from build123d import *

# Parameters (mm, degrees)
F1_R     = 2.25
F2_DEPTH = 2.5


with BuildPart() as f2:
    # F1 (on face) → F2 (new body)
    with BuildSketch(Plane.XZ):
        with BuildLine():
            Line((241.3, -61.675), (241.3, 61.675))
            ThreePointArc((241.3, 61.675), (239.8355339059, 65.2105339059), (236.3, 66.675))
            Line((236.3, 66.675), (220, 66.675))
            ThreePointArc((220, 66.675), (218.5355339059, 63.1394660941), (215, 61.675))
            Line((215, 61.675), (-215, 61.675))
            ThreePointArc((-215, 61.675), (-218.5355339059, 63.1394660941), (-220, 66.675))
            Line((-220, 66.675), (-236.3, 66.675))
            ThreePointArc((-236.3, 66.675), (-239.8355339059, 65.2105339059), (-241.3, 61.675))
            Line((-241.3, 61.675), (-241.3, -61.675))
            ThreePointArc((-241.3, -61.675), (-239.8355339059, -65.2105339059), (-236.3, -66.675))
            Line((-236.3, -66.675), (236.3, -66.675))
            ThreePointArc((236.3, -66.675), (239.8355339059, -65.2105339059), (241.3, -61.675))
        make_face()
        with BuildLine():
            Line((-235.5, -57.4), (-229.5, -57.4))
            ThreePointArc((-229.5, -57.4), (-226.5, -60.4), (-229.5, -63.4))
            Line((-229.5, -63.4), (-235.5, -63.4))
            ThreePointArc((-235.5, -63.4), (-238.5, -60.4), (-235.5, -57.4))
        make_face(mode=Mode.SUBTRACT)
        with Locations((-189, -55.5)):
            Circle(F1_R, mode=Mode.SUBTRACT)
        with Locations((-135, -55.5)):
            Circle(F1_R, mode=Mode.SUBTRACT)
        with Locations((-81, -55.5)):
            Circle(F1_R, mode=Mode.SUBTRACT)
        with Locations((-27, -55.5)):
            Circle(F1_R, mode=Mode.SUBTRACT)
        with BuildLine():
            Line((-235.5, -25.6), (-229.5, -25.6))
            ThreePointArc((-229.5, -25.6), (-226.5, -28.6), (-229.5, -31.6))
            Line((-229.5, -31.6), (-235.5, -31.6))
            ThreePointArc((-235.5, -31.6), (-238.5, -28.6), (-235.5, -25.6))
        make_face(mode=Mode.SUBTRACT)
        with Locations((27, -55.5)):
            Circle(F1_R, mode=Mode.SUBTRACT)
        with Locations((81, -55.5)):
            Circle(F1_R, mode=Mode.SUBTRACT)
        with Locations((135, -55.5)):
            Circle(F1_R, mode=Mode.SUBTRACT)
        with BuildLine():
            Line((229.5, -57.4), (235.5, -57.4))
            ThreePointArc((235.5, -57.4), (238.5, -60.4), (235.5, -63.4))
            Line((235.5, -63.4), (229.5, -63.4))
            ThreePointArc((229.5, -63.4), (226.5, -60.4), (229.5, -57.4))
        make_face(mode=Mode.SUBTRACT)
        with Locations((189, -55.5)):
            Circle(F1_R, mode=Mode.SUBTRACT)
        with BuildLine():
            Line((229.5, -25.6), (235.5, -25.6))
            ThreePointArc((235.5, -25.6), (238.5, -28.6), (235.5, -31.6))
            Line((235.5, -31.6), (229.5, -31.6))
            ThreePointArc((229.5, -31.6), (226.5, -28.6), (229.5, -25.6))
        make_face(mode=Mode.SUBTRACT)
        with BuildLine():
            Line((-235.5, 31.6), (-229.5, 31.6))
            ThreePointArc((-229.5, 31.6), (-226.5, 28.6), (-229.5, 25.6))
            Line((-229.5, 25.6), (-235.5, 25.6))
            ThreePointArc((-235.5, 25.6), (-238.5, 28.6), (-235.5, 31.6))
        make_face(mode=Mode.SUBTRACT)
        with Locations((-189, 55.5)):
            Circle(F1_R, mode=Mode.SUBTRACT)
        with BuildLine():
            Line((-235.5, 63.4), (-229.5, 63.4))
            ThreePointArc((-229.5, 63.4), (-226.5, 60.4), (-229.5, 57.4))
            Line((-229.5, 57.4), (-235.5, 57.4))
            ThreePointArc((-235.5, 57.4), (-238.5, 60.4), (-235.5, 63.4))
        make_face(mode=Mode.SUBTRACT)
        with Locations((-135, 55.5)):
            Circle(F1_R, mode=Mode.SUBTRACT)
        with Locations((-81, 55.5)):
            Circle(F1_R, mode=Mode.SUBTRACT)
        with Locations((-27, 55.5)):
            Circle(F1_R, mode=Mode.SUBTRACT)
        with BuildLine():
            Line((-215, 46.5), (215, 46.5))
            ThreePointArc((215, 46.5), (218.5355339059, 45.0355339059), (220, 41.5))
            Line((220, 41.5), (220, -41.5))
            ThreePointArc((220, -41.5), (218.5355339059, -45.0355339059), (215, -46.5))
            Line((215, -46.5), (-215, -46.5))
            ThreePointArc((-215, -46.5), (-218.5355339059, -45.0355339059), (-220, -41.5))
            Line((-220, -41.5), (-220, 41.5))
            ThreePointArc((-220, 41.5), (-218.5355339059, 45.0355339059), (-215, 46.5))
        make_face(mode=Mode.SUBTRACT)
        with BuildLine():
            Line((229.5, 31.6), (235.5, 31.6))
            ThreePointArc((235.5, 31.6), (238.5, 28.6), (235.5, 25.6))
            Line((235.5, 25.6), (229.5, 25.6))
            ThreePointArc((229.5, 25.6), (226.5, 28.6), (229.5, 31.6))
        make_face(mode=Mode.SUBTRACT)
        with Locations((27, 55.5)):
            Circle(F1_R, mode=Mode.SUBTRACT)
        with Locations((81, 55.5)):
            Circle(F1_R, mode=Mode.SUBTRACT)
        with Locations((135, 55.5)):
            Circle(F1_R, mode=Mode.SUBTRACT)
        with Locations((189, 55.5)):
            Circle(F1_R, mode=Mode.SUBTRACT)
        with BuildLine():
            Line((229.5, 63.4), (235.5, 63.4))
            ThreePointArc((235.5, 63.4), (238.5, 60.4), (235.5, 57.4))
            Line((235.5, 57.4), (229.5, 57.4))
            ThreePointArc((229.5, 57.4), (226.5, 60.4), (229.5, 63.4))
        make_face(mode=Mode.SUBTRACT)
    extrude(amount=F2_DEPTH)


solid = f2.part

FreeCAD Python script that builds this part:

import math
import FreeCAD as App
import Part
import Sketcher

V = App.Vector

doc = App.newDocument("Part")
body = doc.addObject("PartDesign::Body", "Body")

sketch1 = body.newObject("Sketcher::SketchObject", "Sketch")
sketch1.AttachmentSupport = (doc.getObject("XZ_Plane"), [""])
sketch1.MapMode = "FlatFace"
sketch1.addGeometry([
    Part.LineSegment(V(241.3, -61.7, 0), V(241.3, 61.7, 0)),
    Part.ArcOfCircle(Part.Circle(V(236.3, 61.7, 0), V(0, 0, 1), 5), math.radians(0), math.radians(90)),
    Part.LineSegment(V(236.3, 66.7, 0), V(220, 66.7, 0)),
    Part.ArcOfCircle(Part.Circle(V(215, 66.7, 0), V(0, 0, 1), 5), math.radians(-90), math.radians(0)),
    Part.LineSegment(V(215, 61.7, 0), V(-215, 61.7, 0)),
    Part.ArcOfCircle(Part.Circle(V(-215, 66.7, 0), V(0, 0, 1), 5), math.radians(180), math.radians(270)),
    Part.LineSegment(V(-220, 66.7, 0), V(-236.3, 66.7, 0)),
    Part.ArcOfCircle(Part.Circle(V(-236.3, 61.7, 0), V(0, 0, 1), 5), math.radians(90), math.radians(180)),
    Part.LineSegment(V(-241.3, 61.7, 0), V(-241.3, -61.7, 0)),
    Part.ArcOfCircle(Part.Circle(V(-236.3, -61.7, 0), V(0, 0, 1), 5), math.radians(180), math.radians(270)),
    Part.LineSegment(V(-236.3, -66.7, 0), V(236.3, -66.7, 0)),
    Part.ArcOfCircle(Part.Circle(V(236.3, -61.7, 0), V(0, 0, 1), 5), math.radians(-90), math.radians(0)),
    Part.ArcOfCircle(Part.Circle(V(-235.5, -60.4, 0), V(0, 0, 1), 3), math.radians(90), math.radians(270)),
    Part.LineSegment(V(-235.5, -57.4, 0), V(-229.5, -57.4, 0)),
    Part.ArcOfCircle(Part.Circle(V(-229.5, -60.4, 0), V(0, 0, 1), 3), math.radians(-90), math.radians(90)),
    Part.LineSegment(V(-229.5, -63.4, 0), V(-235.5, -63.4, 0)),
    Part.Circle(V(-189, -55.5, 0), V(0, 0, 1), 2.2),
    Part.Circle(V(-135, -55.5, 0), V(0, 0, 1), 2.2),
    Part.Circle(V(-81, -55.5, 0), V(0, 0, 1), 2.2),
    Part.Circle(V(-27, -55.5, 0), V(0, 0, 1), 2.2),
    Part.ArcOfCircle(Part.Circle(V(-235.5, -28.6, 0), V(0, 0, 1), 3), math.radians(90), math.radians(270)),
    Part.LineSegment(V(-235.5, -25.6, 0), V(-229.5, -25.6, 0)),
    Part.ArcOfCircle(Part.Circle(V(-229.5, -28.6, 0), V(0, 0, 1), 3), math.radians(-90), math.radians(90)),
    Part.LineSegment(V(-229.5, -31.6, 0), V(-235.5, -31.6, 0)),
    Part.Circle(V(27, -55.5, 0), V(0, 0, 1), 2.2),
    Part.Circle(V(81, -55.5, 0), V(0, 0, 1), 2.2),
    Part.Circle(V(135, -55.5, 0), V(0, 0, 1), 2.2),
    Part.Circle(V(189, -55.5, 0), V(0, 0, 1), 2.2),
    Part.ArcOfCircle(Part.Circle(V(229.5, -60.4, 0), V(0, 0, 1), 3), math.radians(90), math.radians(270)),
    Part.LineSegment(V(229.5, -57.4, 0), V(235.5, -57.4, 0)),
    Part.ArcOfCircle(Part.Circle(V(235.5, -60.4, 0), V(0, 0, 1), 3), math.radians(-90), math.radians(90)),
    Part.LineSegment(V(235.5, -63.4, 0), V(229.5, -63.4, 0)),
    Part.ArcOfCircle(Part.Circle(V(-215, 41.5, 0), V(0, 0, 1), 5), math.radians(90), math.radians(180)),
    Part.LineSegment(V(-215, 46.5, 0), V(215, 46.5, 0)),
    Part.ArcOfCircle(Part.Circle(V(215, 41.5, 0), V(0, 0, 1), 5), math.radians(0), math.radians(90)),
    Part.LineSegment(V(220, 41.5, 0), V(220, -41.5, 0)),
    Part.ArcOfCircle(Part.Circle(V(215, -41.5, 0), V(0, 0, 1), 5), math.radians(-90), math.radians(0)),
    Part.LineSegment(V(215, -46.5, 0), V(-215, -46.5, 0)),
    Part.ArcOfCircle(Part.Circle(V(-215, -41.5, 0), V(0, 0, 1), 5), math.radians(180), math.radians(270)),
    Part.LineSegment(V(-220, -41.5, 0), V(-220, 41.5, 0)),
    Part.ArcOfCircle(Part.Circle(V(229.5, -28.6, 0), V(0, 0, 1), 3), math.radians(90), math.radians(270)),
    Part.LineSegment(V(229.5, -25.6, 0), V(235.5, -25.6, 0)),
    Part.ArcOfCircle(Part.Circle(V(235.5, -28.6, 0), V(0, 0, 1), 3), math.radians(-90), math.radians(90)),
    Part.LineSegment(V(235.5, -31.6, 0), V(229.5, -31.6, 0)),
    Part.ArcOfCircle(Part.Circle(V(-235.5, 28.6, 0), V(0, 0, 1), 3), math.radians(90), math.radians(270)),
    Part.LineSegment(V(-235.5, 31.6, 0), V(-229.5, 31.6, 0)),
    Part.ArcOfCircle(Part.Circle(V(-229.5, 28.6, 0), V(0, 0, 1), 3), math.radians(-90), math.radians(90)),
    Part.LineSegment(V(-229.5, 25.6, 0), V(-235.5, 25.6, 0)),
    Part.ArcOfCircle(Part.Circle(V(-235.5, 60.4, 0), V(0, 0, 1), 3), math.radians(90), math.radians(270)),
    Part.LineSegment(V(-235.5, 63.4, 0), V(-229.5, 63.4, 0)),
    Part.ArcOfCircle(Part.Circle(V(-229.5, 60.4, 0), V(0, 0, 1), 3), math.radians(-90), math.radians(90)),
    Part.LineSegment(V(-229.5, 57.4, 0), V(-235.5, 57.4, 0)),
    Part.Circle(V(-189, 55.5, 0), V(0, 0, 1), 2.2),
    Part.Circle(V(-135, 55.5, 0), V(0, 0, 1), 2.2),
    Part.Circle(V(-81, 55.5, 0), V(0, 0, 1), 2.2),
    Part.Circle(V(-27, 55.5, 0), V(0, 0, 1), 2.2),
    Part.ArcOfCircle(Part.Circle(V(229.5, 28.6, 0), V(0, 0, 1), 3), math.radians(90), math.radians(270)),
    Part.LineSegment(V(229.5, 31.6, 0), V(235.5, 31.6, 0)),
    Part.ArcOfCircle(Part.Circle(V(235.5, 28.6, 0), V(0, 0, 1), 3), math.radians(-90), math.radians(90)),
    Part.LineSegment(V(235.5, 25.6, 0), V(229.5, 25.6, 0)),
    Part.Circle(V(27, 55.5, 0), V(0, 0, 1), 2.2),
    Part.Circle(V(81, 55.5, 0), V(0, 0, 1), 2.2),
    Part.Circle(V(135, 55.5, 0), V(0, 0, 1), 2.2),
    Part.Circle(V(189, 55.5, 0), V(0, 0, 1), 2.2),
    Part.ArcOfCircle(Part.Circle(V(229.5, 60.4, 0), V(0, 0, 1), 3), math.radians(90), math.radians(270)),
    Part.LineSegment(V(229.5, 63.4, 0), V(235.5, 63.4, 0)),
    Part.ArcOfCircle(Part.Circle(V(235.5, 60.4, 0), V(0, 0, 1), 3), math.radians(-90), math.radians(90)),
    Part.LineSegment(V(235.5, 57.4, 0), V(229.5, 57.4, 0)),
], False)
sketch1.addConstraint([
    Sketcher.Constraint("Tangent", 0, 2, 1, 1),
    Sketcher.Constraint("Tangent", 1, 2, 2, 1),
    Sketcher.Constraint("Coincident", 2, 2, 3, 2),
    Sketcher.Constraint("Tangent", 3, 1, 4, 1),
    Sketcher.Constraint("Tangent", 4, 2, 5, 2),
    Sketcher.Constraint("Coincident", 5, 1, 6, 1),
    Sketcher.Constraint("Tangent", 6, 2, 7, 1),
    Sketcher.Constraint("Tangent", 7, 2, 8, 1),
    Sketcher.Constraint("Tangent", 8, 2, 9, 1),
    Sketcher.Constraint("Tangent", 9, 2, 10, 1),
    Sketcher.Constraint("Tangent", 10, 2, 11, 1),
    Sketcher.Constraint("Tangent", 11, 2, 0, 1),
    Sketcher.Constraint("Tangent", 12, 1, 13, 1),
    Sketcher.Constraint("Tangent", 13, 2, 14, 2),
    Sketcher.Constraint("Tangent", 14, 1, 15, 1),
    Sketcher.Constraint("Tangent", 15, 2, 12, 2),
    Sketcher.Constraint("Tangent", 20, 1, 21, 1),
    Sketcher.Constraint("Tangent", 21, 2, 22, 2),
    Sketcher.Constraint("Tangent", 22, 1, 23, 1),
    Sketcher.Constraint("Tangent", 23, 2, 20, 2),
    Sketcher.Constraint("Tangent", 28, 1, 29, 1),
    Sketcher.Constraint("Tangent", 29, 2, 30, 2),
    Sketcher.Constraint("Tangent", 30, 1, 31, 1),
    Sketcher.Constraint("Tangent", 31, 2, 28, 2),
    Sketcher.Constraint("Tangent", 32, 1, 33, 1),
    Sketcher.Constraint("Tangent", 33, 2, 34, 2),
    Sketcher.Constraint("Tangent", 34, 1, 35, 1),
    Sketcher.Constraint("Tangent", 35, 2, 36, 2),
    Sketcher.Constraint("Tangent", 36, 1, 37, 1),
    Sketcher.Constraint("Tangent", 37, 2, 38, 2),
    Sketcher.Constraint("Tangent", 38, 1, 39, 1),
    Sketcher.Constraint("Tangent", 39, 2, 32, 2),
    Sketcher.Constraint("Tangent", 40, 1, 41, 1),
    Sketcher.Constraint("Tangent", 41, 2, 42, 2),
    Sketcher.Constraint("Tangent", 42, 1, 43, 1),
    Sketcher.Constraint("Tangent", 43, 2, 40, 2),
    Sketcher.Constraint("Tangent", 44, 1, 45, 1),
    Sketcher.Constraint("Tangent", 45, 2, 46, 2),
    Sketcher.Constraint("Tangent", 46, 1, 47, 1),
    Sketcher.Constraint("Tangent", 47, 2, 44, 2),
    Sketcher.Constraint("Tangent", 48, 1, 49, 1),
    Sketcher.Constraint("Tangent", 49, 2, 50, 2),
    Sketcher.Constraint("Tangent", 50, 1, 51, 1),
    Sketcher.Constraint("Tangent", 51, 2, 48, 2),
    Sketcher.Constraint("Tangent", 56, 1, 57, 1),
    Sketcher.Constraint("Tangent", 57, 2, 58, 2),
    Sketcher.Constraint("Tangent", 58, 1, 59, 1),
    Sketcher.Constraint("Tangent", 59, 2, 56, 2),
    Sketcher.Constraint("Tangent", 64, 1, 65, 1),
    Sketcher.Constraint("Tangent", 65, 2, 66, 2),
    Sketcher.Constraint("Tangent", 66, 1, 67, 1),
    Sketcher.Constraint("Tangent", 67, 2, 64, 2),
    Sketcher.Constraint("Vertical", 0),
    Sketcher.Constraint("Horizontal", 2),
    Sketcher.Constraint("Horizontal", 4),
    Sketcher.Constraint("Horizontal", 6),
    Sketcher.Constraint("Vertical", 8),
    Sketcher.Constraint("Horizontal", 10),
    Sketcher.Constraint("Horizontal", 13),
    Sketcher.Constraint("Horizontal", 15),
    Sketcher.Constraint("Horizontal", 21),
    Sketcher.Constraint("Horizontal", 23),
    Sketcher.Constraint("Horizontal", 29),
    Sketcher.Constraint("Horizontal", 31),
    Sketcher.Constraint("Horizontal", 33),
    Sketcher.Constraint("Vertical", 35),
    Sketcher.Constraint("Horizontal", 37),
    Sketcher.Constraint("Vertical", 39),
    Sketcher.Constraint("Horizontal", 41),
    Sketcher.Constraint("Horizontal", 43),
    Sketcher.Constraint("Horizontal", 45),
    Sketcher.Constraint("Horizontal", 47),
    Sketcher.Constraint("Horizontal", 49),
    Sketcher.Constraint("Horizontal", 51),
    Sketcher.Constraint("Horizontal", 57),
    Sketcher.Constraint("Horizontal", 59),
    Sketcher.Constraint("Horizontal", 65),
    Sketcher.Constraint("Horizontal", 67),
    Sketcher.Constraint("Equal", 1, 3),
    Sketcher.Constraint("Equal", 3, 5),
    Sketcher.Constraint("Equal", 5, 7),
    Sketcher.Constraint("Equal", 7, 9),
    Sketcher.Constraint("Equal", 9, 11),
    Sketcher.Constraint("Equal", 16, 17),
    Sketcher.Constraint("Equal", 17, 18),
    Sketcher.Constraint("Equal", 18, 19),
    Sketcher.Constraint("Equal", 14, 20),
    Sketcher.Constraint("Equal", 19, 24),
    Sketcher.Constraint("Equal", 24, 25),
    Sketcher.Constraint("Equal", 25, 26),
    Sketcher.Constraint("Equal", 26, 27),
    Sketcher.Constraint("Equal", 22, 28),
    Sketcher.Constraint("Equal", 11, 32),
    Sketcher.Constraint("Equal", 32, 34),
    Sketcher.Constraint("Equal", 34, 36),
    Sketcher.Constraint("Equal", 36, 38),
    Sketcher.Constraint("Equal", 30, 40),
    Sketcher.Constraint("Equal", 42, 44),
    Sketcher.Constraint("Equal", 46, 48),
    Sketcher.Constraint("Equal", 27, 52),
    Sketcher.Constraint("Equal", 52, 53),
    Sketcher.Constraint("Equal", 53, 54),
    Sketcher.Constraint("Equal", 54, 55),
    Sketcher.Constraint("Equal", 50, 56),
    Sketcher.Constraint("Equal", 55, 60),
    Sketcher.Constraint("Equal", 60, 61),
    Sketcher.Constraint("Equal", 61, 62),
    Sketcher.Constraint("Equal", 62, 63),
    Sketcher.Constraint("Equal", 58, 64),
    Sketcher.Constraint("Symmetric", 1, 3, 9, 3, -1, 1),
    Sketcher.Constraint("Symmetric", 32, 3, 36, 3, -1, 1),
    Sketcher.Constraint("Symmetric", 42, 3, 44, 3, -1, 1),
    Sketcher.Constraint("Symmetric", 30, 3, 48, 3, -1, 1),
    Sketcher.Constraint("Symmetric", 27, 3, 52, 3, -1, 1),
    Sketcher.Constraint("Symmetric", 26, 3, 53, 3, -1, 1),
    Sketcher.Constraint("Symmetric", 25, 3, 54, 3, -1, 1),
    Sketcher.Constraint("Symmetric", 24, 3, 55, 3, -1, 1),
    Sketcher.Constraint("Symmetric", 22, 3, 56, 3, -1, 1),
    Sketcher.Constraint("Symmetric", 19, 3, 60, 3, -1, 1),
    Sketcher.Constraint("Symmetric", 18, 3, 61, 3, -1, 1),
    Sketcher.Constraint("Symmetric", 17, 3, 62, 3, -1, 1),
    Sketcher.Constraint("Symmetric", 16, 3, 63, 3, -1, 1),
    Sketcher.Constraint("Symmetric", 14, 3, 64, 3, -1, 1),
    Sketcher.Constraint("Symmetric", 19, 3, 24, 3, -2),
    Sketcher.Constraint("Symmetric", 18, 3, 25, 3, -2),
    Sketcher.Constraint("Symmetric", 17, 3, 26, 3, -2),
    Sketcher.Constraint("Symmetric", 16, 3, 27, 3, -2),
    Sketcher.Constraint("Symmetric", 14, 3, 28, 3, -2),
    Sketcher.Constraint("Symmetric", 22, 3, 40, 3, -2),
    Sketcher.Constraint("Symmetric", 2, 2, 5, 1, -2),
    Sketcher.Constraint("Horizontal", 16, 3, 17, 3),
    Sketcher.Constraint("Horizontal", 17, 3, 18, 3),
    Sketcher.Constraint("Horizontal", 18, 3, 19, 3),
    Sketcher.Constraint("Horizontal", 5, 3, 1, 2),
    Sketcher.Constraint("Vertical", 12, 3, 20, 3),
    Sketcher.Constraint("Vertical", 14, 3, 22, 3),
    Sketcher.Constraint("Vertical", 5, 3, 32, 3),
    Sketcher.Constraint("Vertical", 30, 3, 42, 3),
    Sketcher.Constraint("Vertical", 20, 3, 44, 3),
    Sketcher.Constraint("Vertical", 22, 3, 46, 3),
    Sketcher.Constraint("Vertical", 46, 3, 50, 3),
    Sketcher.Constraint("Vertical", 42, 3, 58, 3),
    Sketcher.Constraint("Vertical", 58, 3, 66, 3),
    Sketcher.Constraint("Radius", 1, 5.0),
    Sketcher.Constraint("Radius", 12, 3.0),
    Sketcher.Constraint("Diameter", 16, 4.5),
    Sketcher.Constraint("DistanceX", 4, 2, 4, 1, 430.0),
    Sketcher.Constraint("DistanceX", 13, 1, 13, 2, 6.0),
    Sketcher.Constraint("DistanceY", 35, 2, 35, 1, 83.0),
    Sketcher.Constraint("DistanceX", 2, 2, 2, 1, 16.3),
    Sketcher.Constraint("DistanceX", 16, 3, -1, 1, 189.0),
    Sketcher.Constraint("DistanceX", 17, 3, -1, 1, 135.0),
    Sketcher.Constraint("DistanceX", 18, 3, -1, 1, 81.0),
    Sketcher.Constraint("DistanceX", 19, 3, -1, 1, 27.0),
    Sketcher.Constraint("DistanceY", 0, 1, 0, 2, 123.35),
    Sketcher.Constraint("DistanceX", 12, 3, -1, 1, 235.5),
    Sketcher.Constraint("DistanceY", 12, 3, -1, 1, 60.4),
    Sketcher.Constraint("DistanceY", 16, 3, -1, 1, 55.5),
    Sketcher.Constraint("DistanceY", 20, 3, -1, 1, 28.6),
])
pad1 = body.newObject("PartDesign::Pad", "Pad")
pad1.Profile = sketch1
pad1.Length = 2.5

doc.recompute()
